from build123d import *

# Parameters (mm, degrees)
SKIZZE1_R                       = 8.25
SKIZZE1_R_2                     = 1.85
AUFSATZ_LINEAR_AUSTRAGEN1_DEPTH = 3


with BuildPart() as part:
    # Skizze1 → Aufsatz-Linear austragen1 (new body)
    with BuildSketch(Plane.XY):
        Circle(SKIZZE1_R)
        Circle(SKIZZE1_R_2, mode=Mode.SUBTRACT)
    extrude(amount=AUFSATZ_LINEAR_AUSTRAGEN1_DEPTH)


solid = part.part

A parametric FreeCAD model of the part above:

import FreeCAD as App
import Part
import Sketcher
from FreeCAD import Vector

doc = App.newDocument("Part")
body = doc.addObject("PartDesign::Body", "Body")

# Sketch on XY plane
sketch1 = body.newObject("Sketcher::SketchObject", "Sketch")
sketch1.AttachmentSupport = (doc.getObject("XY_Plane"), [""])
sketch1.MapMode = "FlatFace"
sketch1.addGeometry([
    Part.Circle(Vector(0, 0, 0), Vector(0, 0, 1), 8.25),
    Part.Circle(Vector(0, 0, 0), Vector(0, 0, 1), 1.85),
], False)
sketch1.addConstraint([
    Sketcher.Constraint("Coincident", 0, 3, -1, 1),
    Sketcher.Constraint("Coincident", 1, 3, -1, 1),
    Sketcher.Constraint("Diameter", 0, 16.5),
    Sketcher.Constraint("Diameter", 1, 3.7),
])
pad1 = body.newObject("PartDesign::Pad", "Pad")
pad1.Profile = sketch1
pad1.Length = 3

doc.recompute()
